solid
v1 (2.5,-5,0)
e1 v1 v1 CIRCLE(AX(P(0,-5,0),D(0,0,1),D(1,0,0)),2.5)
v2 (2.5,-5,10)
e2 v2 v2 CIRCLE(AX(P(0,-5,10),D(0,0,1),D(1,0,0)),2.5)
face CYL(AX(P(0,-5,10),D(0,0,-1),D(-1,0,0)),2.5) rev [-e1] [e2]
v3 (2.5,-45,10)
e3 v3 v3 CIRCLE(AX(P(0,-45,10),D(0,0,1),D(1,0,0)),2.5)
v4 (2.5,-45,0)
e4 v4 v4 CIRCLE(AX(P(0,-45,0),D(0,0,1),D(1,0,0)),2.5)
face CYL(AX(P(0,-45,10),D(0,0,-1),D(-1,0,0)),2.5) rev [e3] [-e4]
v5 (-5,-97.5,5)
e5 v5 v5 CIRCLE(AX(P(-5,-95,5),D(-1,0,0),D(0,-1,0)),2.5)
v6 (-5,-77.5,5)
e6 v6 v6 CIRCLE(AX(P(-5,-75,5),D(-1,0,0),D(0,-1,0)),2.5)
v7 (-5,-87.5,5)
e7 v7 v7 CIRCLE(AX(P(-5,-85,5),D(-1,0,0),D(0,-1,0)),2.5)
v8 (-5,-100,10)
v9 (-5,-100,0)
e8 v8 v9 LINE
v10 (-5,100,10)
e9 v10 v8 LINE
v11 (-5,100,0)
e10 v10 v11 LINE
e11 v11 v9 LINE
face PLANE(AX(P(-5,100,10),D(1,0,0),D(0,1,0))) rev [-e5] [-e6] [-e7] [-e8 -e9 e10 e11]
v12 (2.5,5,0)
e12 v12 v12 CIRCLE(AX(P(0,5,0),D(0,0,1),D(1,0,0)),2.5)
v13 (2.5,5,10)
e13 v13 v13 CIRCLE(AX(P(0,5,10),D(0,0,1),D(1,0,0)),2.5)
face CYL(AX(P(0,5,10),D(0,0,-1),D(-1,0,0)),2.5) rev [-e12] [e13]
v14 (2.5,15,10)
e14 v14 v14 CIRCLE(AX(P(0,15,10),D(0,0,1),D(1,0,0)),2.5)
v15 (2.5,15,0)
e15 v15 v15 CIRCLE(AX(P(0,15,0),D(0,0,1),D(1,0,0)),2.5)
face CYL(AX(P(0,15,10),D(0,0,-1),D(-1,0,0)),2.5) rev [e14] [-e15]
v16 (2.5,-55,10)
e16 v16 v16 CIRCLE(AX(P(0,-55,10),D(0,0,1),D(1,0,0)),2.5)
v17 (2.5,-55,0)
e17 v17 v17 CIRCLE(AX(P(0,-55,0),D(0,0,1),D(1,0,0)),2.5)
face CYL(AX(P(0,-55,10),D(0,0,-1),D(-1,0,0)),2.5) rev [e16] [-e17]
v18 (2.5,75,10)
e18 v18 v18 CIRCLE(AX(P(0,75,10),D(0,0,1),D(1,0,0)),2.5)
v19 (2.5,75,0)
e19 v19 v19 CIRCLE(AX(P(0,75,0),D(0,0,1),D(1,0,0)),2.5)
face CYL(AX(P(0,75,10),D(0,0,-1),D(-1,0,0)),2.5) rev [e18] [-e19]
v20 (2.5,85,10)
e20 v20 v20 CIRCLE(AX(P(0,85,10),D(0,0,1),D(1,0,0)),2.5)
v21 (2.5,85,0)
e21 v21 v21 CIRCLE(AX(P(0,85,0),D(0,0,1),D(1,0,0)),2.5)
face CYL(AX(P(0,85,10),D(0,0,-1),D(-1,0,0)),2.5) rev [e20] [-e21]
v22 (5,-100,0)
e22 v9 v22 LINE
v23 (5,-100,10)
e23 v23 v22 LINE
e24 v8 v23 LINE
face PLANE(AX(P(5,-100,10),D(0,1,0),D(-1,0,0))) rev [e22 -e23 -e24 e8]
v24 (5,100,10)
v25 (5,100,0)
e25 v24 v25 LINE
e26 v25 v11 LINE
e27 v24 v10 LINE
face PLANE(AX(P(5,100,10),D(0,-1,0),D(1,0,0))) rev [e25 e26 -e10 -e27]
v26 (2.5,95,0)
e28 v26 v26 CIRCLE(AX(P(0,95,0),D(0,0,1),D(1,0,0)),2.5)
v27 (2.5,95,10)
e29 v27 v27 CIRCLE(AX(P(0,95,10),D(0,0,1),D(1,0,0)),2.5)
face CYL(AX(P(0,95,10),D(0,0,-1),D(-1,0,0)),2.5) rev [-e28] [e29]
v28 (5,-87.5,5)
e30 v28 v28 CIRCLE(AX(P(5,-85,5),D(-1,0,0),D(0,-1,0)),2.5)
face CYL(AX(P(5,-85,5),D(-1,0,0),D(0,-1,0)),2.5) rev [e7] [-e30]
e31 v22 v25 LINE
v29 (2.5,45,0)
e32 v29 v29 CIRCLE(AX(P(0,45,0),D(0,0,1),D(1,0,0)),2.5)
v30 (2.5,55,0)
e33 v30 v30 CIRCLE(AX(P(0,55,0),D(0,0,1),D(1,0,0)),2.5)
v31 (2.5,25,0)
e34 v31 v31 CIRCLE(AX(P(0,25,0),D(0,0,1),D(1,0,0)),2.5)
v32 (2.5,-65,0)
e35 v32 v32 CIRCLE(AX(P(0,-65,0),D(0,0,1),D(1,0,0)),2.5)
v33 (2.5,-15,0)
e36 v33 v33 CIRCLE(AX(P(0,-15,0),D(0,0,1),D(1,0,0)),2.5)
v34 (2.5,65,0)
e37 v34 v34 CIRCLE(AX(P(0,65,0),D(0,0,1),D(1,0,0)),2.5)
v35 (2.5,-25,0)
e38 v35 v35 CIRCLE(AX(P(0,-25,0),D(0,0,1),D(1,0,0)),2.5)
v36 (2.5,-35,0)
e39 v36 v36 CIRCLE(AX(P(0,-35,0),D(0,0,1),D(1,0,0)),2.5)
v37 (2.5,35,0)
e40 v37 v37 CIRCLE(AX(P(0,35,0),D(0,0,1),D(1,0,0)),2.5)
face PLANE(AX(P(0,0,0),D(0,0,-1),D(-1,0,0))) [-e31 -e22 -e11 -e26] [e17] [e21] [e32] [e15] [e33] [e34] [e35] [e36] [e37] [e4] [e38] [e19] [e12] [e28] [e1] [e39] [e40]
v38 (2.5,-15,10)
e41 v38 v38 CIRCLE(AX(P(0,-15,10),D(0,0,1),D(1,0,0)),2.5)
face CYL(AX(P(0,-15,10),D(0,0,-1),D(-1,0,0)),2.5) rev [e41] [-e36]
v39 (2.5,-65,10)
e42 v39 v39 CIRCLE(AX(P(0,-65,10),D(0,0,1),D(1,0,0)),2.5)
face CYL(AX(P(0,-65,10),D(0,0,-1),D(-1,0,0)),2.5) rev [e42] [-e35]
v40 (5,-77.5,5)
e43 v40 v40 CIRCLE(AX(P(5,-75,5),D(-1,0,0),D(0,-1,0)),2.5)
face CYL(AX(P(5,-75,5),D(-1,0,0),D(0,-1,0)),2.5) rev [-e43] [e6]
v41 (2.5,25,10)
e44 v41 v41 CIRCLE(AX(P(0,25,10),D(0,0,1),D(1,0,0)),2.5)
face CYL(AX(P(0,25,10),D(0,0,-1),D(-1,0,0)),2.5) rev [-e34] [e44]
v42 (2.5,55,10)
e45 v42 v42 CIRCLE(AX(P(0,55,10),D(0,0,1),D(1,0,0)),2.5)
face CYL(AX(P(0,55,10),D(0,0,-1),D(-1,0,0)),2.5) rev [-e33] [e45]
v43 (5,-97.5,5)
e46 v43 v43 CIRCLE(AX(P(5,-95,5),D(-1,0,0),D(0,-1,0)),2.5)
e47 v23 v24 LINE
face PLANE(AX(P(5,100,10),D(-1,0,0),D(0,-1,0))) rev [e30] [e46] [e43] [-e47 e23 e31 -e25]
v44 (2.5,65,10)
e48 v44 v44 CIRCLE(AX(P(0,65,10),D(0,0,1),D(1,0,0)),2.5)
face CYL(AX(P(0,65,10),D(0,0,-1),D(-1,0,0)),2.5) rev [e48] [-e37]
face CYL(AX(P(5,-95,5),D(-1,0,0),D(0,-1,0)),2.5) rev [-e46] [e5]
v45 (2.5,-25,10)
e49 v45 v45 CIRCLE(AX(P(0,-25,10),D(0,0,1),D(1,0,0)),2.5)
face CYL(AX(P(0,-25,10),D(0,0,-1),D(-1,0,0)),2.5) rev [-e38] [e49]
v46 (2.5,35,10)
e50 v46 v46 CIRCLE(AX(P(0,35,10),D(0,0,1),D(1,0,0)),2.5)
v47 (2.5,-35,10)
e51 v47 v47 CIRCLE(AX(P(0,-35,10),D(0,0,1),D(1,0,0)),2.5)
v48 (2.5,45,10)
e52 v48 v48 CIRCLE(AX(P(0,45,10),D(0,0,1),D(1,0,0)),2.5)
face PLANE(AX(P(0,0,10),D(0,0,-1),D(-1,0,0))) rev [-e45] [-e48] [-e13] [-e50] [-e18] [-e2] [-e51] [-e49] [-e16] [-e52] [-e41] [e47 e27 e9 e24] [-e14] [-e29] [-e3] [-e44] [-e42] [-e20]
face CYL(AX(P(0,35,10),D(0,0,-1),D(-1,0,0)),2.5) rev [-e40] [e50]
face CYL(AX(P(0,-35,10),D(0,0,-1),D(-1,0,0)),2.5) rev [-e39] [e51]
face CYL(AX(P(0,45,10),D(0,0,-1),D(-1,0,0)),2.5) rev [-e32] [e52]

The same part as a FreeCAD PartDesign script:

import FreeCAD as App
import Part
import Sketcher


def add_polygon(sketch, points):
    """Adds a closed chain of lines whose ends are joined by coincident constraints."""
    first, n = sketch.GeometryCount, len(points)
    for a, b in zip(points, points[1:] + points[:1]):
        sketch.addGeometry(Part.LineSegment(App.Vector(*a, 0), App.Vector(*b, 0)), False)
    for i in range(n):
        sketch.addConstraint(Sketcher.Constraint("Coincident", first + i, 2, first + (i + 1) % n, 1))

doc = App.newDocument("Part")
params = doc.addObject("Spreadsheet::Sheet", "Params")
for row, (alias, value) in enumerate([
    ("sketch1_diameter", "5 mm"),
    ("sketch1_width", "10 mm"),
    ("sketch1_height", "200 mm"),
    ("pad1_length", "10 mm"),
    ("sketch2_diameter", "5 mm"),
], start=1):
    params.set(f"A{row}", alias)
    params.set(f"B{row}", "=" + value)
    params.setAlias(f"B{row}", alias)

body = doc.addObject("PartDesign::Body", "Body")

sketch1 = body.newObject("Sketcher::SketchObject", "Sketch")
sketch1.AttachmentSupport = (doc.getObject("XY_Plane"), [""])
sketch1.MapMode = "FlatFace"
add_polygon(sketch1, [(-5, 100), (-5, -100), (5, -100), (5, 100)])
sketch1.addGeometry(Part.Circle(App.Vector(0, -65, 0), App.Vector(0, 0, 1), 2.5), False)
sketch1.addGeometry(Part.Circle(App.Vector(0, -55, 0), App.Vector(0, 0, 1), 2.5), False)
sketch1.addGeometry(Part.Circle(App.Vector(0, -45, 0), App.Vector(0, 0, 1), 2.5), False)
sketch1.addGeometry(Part.Circle(App.Vector(0, -35, 0), App.Vector(0, 0, 1), 2.5), False)
sketch1.addGeometry(Part.Circle(App.Vector(0, -25, 0), App.Vector(0, 0, 1), 2.5), False)
sketch1.addGeometry(Part.Circle(App.Vector(0, -15, 0), App.Vector(0, 0, 1), 2.5), False)
sketch1.addGeometry(Part.Circle(App.Vector(0, -5, 0), App.Vector(0, 0, 1), 2.5), False)
sketch1.addGeometry(Part.Circle(App.Vector(0, 5, 0), App.Vector(0, 0, 1), 2.5), False)
sketch1.addGeometry(Part.Circle(App.Vector(0, 15, 0), App.Vector(0, 0, 1), 2.5), False)
sketch1.addGeometry(Part.Circle(App.Vector(0, 25, 0), App.Vector(0, 0, 1), 2.5), False)
sketch1.addGeometry(Part.Circle(App.Vector(0, 35, 0), App.Vector(0, 0, 1), 2.5), False)
sketch1.addGeometry(Part.Circle(App.Vector(0, 45, 0), App.Vector(0, 0, 1), 2.5), False)
sketch1.addGeometry(Part.Circle(App.Vector(0, 55, 0), App.Vector(0, 0, 1), 2.5), False)
sketch1.addGeometry(Part.Circle(App.Vector(0, 65, 0), App.Vector(0, 0, 1), 2.5), False)
sketch1.addGeometry(Part.Circle(App.Vector(0, 75, 0), App.Vector(0, 0, 1), 2.5), False)
sketch1.addGeometry(Part.Circle(App.Vector(0, 85, 0), App.Vector(0, 0, 1), 2.5), False)
sketch1.addGeometry(Part.Circle(App.Vector(0, 95, 0), App.Vector(0, 0, 1), 2.5), False)
sketch1.addConstraint(Sketcher.Constraint("Vertical", 0))
sketch1.addConstraint(Sketcher.Constraint("Horizontal", 1))
sketch1.addConstraint(Sketcher.Constraint("Vertical", 2))
sketch1.addConstraint(Sketcher.Constraint("Horizontal", 3))
sketch1.addConstraint(Sketcher.Constraint("Equal", 4, 5))
sketch1.addConstraint(Sketcher.Constraint("Equal", 5, 6))
sketch1.addConstraint(Sketcher.Constraint("Equal", 6, 7))
sketch1.addConstraint(Sketcher.Constraint("Equal", 7, 8))
sketch1.addConstraint(Sketcher.Constraint("Equal", 8, 9))
sketch1.addConstraint(Sketcher.Constraint("Equal", 9, 10))
sketch1.addConstraint(Sketcher.Constraint("Equal", 10, 11))
sketch1.addConstraint(Sketcher.Constraint("Equal", 11, 12))
sketch1.addConstraint(Sketcher.Constraint("Equal", 12, 13))
sketch1.addConstraint(Sketcher.Constraint("Equal", 13, 14))
sketch1.addConstraint(Sketcher.Constraint("Equal", 14, 15))
sketch1.addConstraint(Sketcher.Constraint("Equal", 15, 16))
sketch1.addConstraint(Sketcher.Constraint("Equal", 16, 17))
sketch1.addConstraint(Sketcher.Constraint("Equal", 17, 18))
sketch1.addConstraint(Sketcher.Constraint("Equal", 18, 19))
sketch1.addConstraint(Sketcher.Constraint("Equal", 19, 20))
sketch1.addConstraint(Sketcher.Constraint("Symmetric", 10, 3, 11, 3, -1, 1))
sketch1.addConstraint(Sketcher.Constraint("Symmetric", 9, 3, 12, 3, -1, 1))
sketch1.addConstraint(Sketcher.Constraint("Symmetric", 8, 3, 13, 3, -1, 1))
sketch1.addConstraint(Sketcher.Constraint("Symmetric", 7, 3, 14, 3, -1, 1))
sketch1.addConstraint(Sketcher.Constraint("Symmetric", 6, 3, 15, 3, -1, 1))
sketch1.addConstraint(Sketcher.Constraint("Symmetric", 5, 3, 16, 3, -1, 1))
sketch1.addConstraint(Sketcher.Constraint("Symmetric", 4, 3, 17, 3, -1, 1))
sketch1.addConstraint(Sketcher.Constraint("Symmetric", 0, 2, 2, 2, -1, 1))
sketch1.addConstraint(Sketcher.Constraint("PointOnObject", 4, 3, -2))
sketch1.addConstraint(Sketcher.Constraint("PointOnObject", 5, 3, -2))
sketch1.addConstraint(Sketcher.Constraint("PointOnObject", 6, 3, -2))
sketch1.addConstraint(Sketcher.Constraint("PointOnObject", 7, 3, -2))
sketch1.addConstraint(Sketcher.Constraint("PointOnObject", 8, 3, -2))
sketch1.addConstraint(Sketcher.Constraint("PointOnObject", 9, 3, -2))
sketch1.addConstraint(Sketcher.Constraint("PointOnObject", 10, 3, -2))
sketch1.addConstraint(Sketcher.Constraint("PointOnObject", 18, 3, -2))
sketch1.addConstraint(Sketcher.Constraint("PointOnObject", 19, 3, -2))
sketch1.addConstraint(Sketcher.Constraint("PointOnObject", 20, 3, -2))
sketch1.addConstraint(Sketcher.Constraint("Diameter", 4, 5.0))
sketch1.addConstraint(Sketcher.Constraint("DistanceX", 1, 1, 1, 2, 10.0))
sketch1.addConstraint(Sketcher.Constraint("DistanceY", 0, 2, 0, 1, 200.0))
sketch1.addConstraint(Sketcher.Constraint("DistanceY", 4, 3, -1, 1, 65.0))
sketch1.addConstraint(Sketcher.Constraint("DistanceY", 5, 3, -1, 1, 55.0))
sketch1.addConstraint(Sketcher.Constraint("DistanceY", 6, 3, -1, 1, 45.0))
sketch1.addConstraint(Sketcher.Constraint("DistanceY", 7, 3, -1, 1, 35.0))
sketch1.addConstraint(Sketcher.Constraint("DistanceY", 8, 3, -1, 1, 25.0))
sketch1.addConstraint(Sketcher.Constraint("DistanceY", 9, 3, -1, 1, 15.0))
sketch1.addConstraint(Sketcher.Constraint("DistanceY", 10, 3, -1, 1, 5.0))
sketch1.addConstraint(Sketcher.Constraint("DistanceY", -1, 1, 18, 3, 75.0))
sketch1.addConstraint(Sketcher.Constraint("DistanceY", -1, 1, 19, 3, 85.0))
sketch1.addConstraint(Sketcher.Constraint("DistanceY", -1, 1, 20, 3, 95.0))
sketch1.setExpression("Constraints[42]", "Params.sketch1_diameter")
sketch1.setExpression("Constraints[43]", "Params.sketch1_width")
sketch1.setExpression("Constraints[44]", "Params.sketch1_height")
pad1 = body.newObject("PartDesign::Pad", "Pad")
pad1.Profile = sketch1
pad1.setExpression("Length", "Params.pad1_length")

sketch2 = body.newObject("Sketcher::SketchObject", "Sketch001")
sketch2.AttachmentSupport = (doc.getObject("YZ_Plane"), [""])
sketch2.MapMode = "FlatFace"
sketch2.AttachmentOffset = App.Placement(App.Vector(0, 0, -5), App.Rotation())
sketch2.addGeometry(Part.Circle(App.Vector(-95, 5, 0), App.Vector(0, 0, 1), 2.5), False)
sketch2.addGeometry(Part.Circle(App.Vector(-85, 5, 0), App.Vector(0, 0, 1), 2.5), False)
sketch2.addGeometry(Part.Circle(App.Vector(-75, 5, 0), App.Vector(0, 0, 1), 2.5), False)
sketch2.addConstraint(Sketcher.Constraint("Equal", 0, 1))
sketch2.addConstraint(Sketcher.Constraint("Equal", 1, 2))
sketch2.addConstraint(Sketcher.Constraint("Horizontal", 0, 3, 1, 3))
sketch2.addConstraint(Sketcher.Constraint("Horizontal", 1, 3, 2, 3))
sketch2.addConstraint(Sketcher.Constraint("Diameter", 0, 5.0))
sketch2.addConstraint(Sketcher.Constraint("DistanceX", 0, 3, -1, 1, 95.0))
sketch2.addConstraint(Sketcher.Constraint("DistanceY", -1, 1, 0, 3, 5.0))
sketch2.addConstraint(Sketcher.Constraint("DistanceX", 1, 3, -1, 1, 85.0))
sketch2.addConstraint(Sketcher.Constraint("DistanceX", 2, 3, -1, 1, 75.0))
sketch2.setExpression("Constraints[4]", "Params.sketch2_diameter")
pocket1 = body.newObject("PartDesign::Pocket", "Pocket")
pocket1.Profile = sketch2
pocket1.Type = "ThroughAll"
pocket1.Reversed = True

doc.recompute()
